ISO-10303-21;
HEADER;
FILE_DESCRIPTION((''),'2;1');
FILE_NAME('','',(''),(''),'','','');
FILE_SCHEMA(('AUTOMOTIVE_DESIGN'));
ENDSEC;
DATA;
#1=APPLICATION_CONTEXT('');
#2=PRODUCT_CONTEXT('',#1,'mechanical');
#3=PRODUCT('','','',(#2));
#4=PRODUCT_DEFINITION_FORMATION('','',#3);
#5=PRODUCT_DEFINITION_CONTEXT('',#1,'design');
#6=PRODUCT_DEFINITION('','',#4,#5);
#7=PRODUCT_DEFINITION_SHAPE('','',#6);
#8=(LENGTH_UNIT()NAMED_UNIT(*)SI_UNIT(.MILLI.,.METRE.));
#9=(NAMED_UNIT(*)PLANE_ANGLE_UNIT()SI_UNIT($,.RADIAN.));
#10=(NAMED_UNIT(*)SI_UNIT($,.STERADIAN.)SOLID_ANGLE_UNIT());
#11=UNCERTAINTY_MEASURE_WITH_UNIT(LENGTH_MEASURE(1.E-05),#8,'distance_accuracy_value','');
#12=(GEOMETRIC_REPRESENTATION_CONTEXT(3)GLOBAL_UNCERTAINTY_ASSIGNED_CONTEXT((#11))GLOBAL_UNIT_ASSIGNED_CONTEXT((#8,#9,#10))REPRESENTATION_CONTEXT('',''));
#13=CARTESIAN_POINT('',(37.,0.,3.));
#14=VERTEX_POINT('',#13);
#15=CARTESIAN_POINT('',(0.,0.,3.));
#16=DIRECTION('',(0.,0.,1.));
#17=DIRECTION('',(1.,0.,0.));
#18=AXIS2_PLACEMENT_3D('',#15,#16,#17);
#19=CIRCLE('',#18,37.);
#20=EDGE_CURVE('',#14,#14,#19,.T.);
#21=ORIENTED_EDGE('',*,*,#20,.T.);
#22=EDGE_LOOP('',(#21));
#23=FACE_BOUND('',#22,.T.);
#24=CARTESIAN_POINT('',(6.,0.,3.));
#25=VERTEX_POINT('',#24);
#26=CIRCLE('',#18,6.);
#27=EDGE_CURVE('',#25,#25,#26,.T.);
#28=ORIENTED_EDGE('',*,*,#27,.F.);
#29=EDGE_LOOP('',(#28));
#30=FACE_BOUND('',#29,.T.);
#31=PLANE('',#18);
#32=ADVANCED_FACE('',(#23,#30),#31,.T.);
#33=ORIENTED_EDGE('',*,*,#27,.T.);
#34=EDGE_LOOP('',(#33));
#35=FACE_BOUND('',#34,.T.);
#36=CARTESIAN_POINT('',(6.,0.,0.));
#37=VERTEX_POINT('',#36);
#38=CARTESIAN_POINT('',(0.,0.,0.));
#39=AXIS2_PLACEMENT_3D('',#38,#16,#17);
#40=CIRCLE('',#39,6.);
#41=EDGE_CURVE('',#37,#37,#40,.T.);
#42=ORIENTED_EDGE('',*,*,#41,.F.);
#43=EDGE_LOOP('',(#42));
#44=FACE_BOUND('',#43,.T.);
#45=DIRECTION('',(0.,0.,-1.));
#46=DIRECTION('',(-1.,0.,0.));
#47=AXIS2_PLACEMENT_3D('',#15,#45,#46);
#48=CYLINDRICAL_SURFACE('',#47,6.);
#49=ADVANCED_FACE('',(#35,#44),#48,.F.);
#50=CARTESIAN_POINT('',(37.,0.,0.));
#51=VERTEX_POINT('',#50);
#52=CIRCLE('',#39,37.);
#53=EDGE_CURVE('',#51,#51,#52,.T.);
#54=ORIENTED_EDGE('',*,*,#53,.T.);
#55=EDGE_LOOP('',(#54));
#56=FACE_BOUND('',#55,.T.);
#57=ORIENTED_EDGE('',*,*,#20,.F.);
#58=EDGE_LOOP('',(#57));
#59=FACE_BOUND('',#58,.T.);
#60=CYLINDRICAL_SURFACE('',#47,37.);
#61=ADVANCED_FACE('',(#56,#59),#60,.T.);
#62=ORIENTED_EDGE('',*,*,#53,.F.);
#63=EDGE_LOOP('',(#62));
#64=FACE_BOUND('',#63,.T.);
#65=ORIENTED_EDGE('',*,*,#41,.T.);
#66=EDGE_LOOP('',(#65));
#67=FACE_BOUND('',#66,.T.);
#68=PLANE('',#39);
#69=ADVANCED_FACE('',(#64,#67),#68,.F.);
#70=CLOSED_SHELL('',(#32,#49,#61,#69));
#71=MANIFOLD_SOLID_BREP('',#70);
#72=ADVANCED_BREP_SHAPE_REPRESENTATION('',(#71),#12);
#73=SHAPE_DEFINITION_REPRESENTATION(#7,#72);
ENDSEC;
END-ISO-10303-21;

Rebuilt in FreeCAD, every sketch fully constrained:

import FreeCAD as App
import Part
import Sketcher

doc = App.newDocument("Part")
body = doc.addObject("PartDesign::Body", "Body")

# Sketch on XY plane
sketch1 = body.newObject("Sketcher::SketchObject", "Sketch")
sketch1.AttachmentSupport = (doc.getObject("XY_Plane"), [""])
sketch1.MapMode = "FlatFace"
sketch1.addGeometry(Part.Circle(App.Vector(0, 0, 0), App.Vector(0, 0, 1), 37), False)
sketch1.addGeometry(Part.Circle(App.Vector(0, 0, 0), App.Vector(0, 0, 1), 6), False)
sketch1.addConstraint(Sketcher.Constraint("Coincident", 0, 3, -1, 1))
sketch1.addConstraint(Sketcher.Constraint("Coincident", 1, 3, -1, 1))
sketch1.addConstraint(Sketcher.Constraint("Diameter", 0, 74.0))
sketch1.addConstraint(Sketcher.Constraint("Diameter", 1, 12.0))
pad1 = body.newObject("PartDesign::Pad", "Pad")
pad1.Profile = sketch1
pad1.Length = 3

doc.recompute()
